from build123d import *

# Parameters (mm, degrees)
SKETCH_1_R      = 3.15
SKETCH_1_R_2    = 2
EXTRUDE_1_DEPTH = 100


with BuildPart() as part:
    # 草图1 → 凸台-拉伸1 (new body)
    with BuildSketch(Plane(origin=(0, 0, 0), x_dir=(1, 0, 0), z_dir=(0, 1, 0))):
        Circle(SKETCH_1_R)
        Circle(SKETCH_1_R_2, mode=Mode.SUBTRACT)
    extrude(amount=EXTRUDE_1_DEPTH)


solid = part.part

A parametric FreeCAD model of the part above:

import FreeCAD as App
import Part
import Sketcher
from FreeCAD import Vector
Q = App.Units.Quantity

doc = App.newDocument("Part")
body = doc.addObject("PartDesign::Body", "Body")

# Sketch on XZ plane
sketch1 = body.newObject("Sketcher::SketchObject", "Sketch")
sketch1.AttachmentSupport = (doc.getObject("XZ_Plane"), [""])
sketch1.MapMode = "FlatFace"
sketch1.addGeometry(Part.Circle(Vector(0, 0, 0), Vector(0, 0, 1), 3.1), False)
sketch1.addGeometry(Part.Circle(Vector(0, 0, 0), Vector(0, 0, 1), 2), False)
sketch1.addConstraint(Sketcher.Constraint("Coincident", 0, 3, -1, 1))
sketch1.addConstraint(Sketcher.Constraint("Coincident", 1, 3, -1, 1))
sketch1.addConstraint(Sketcher.Constraint("Diameter", 1, Q("4 mm")))
sketch1.addConstraint(Sketcher.Constraint("Diameter", 0, Q("6.3 mm")))
pad1 = body.newObject("PartDesign::Pad", "Pad")
pad1.Profile = sketch1
pad1.Length = 100
pad1.Reversed = True

doc.recompute()
